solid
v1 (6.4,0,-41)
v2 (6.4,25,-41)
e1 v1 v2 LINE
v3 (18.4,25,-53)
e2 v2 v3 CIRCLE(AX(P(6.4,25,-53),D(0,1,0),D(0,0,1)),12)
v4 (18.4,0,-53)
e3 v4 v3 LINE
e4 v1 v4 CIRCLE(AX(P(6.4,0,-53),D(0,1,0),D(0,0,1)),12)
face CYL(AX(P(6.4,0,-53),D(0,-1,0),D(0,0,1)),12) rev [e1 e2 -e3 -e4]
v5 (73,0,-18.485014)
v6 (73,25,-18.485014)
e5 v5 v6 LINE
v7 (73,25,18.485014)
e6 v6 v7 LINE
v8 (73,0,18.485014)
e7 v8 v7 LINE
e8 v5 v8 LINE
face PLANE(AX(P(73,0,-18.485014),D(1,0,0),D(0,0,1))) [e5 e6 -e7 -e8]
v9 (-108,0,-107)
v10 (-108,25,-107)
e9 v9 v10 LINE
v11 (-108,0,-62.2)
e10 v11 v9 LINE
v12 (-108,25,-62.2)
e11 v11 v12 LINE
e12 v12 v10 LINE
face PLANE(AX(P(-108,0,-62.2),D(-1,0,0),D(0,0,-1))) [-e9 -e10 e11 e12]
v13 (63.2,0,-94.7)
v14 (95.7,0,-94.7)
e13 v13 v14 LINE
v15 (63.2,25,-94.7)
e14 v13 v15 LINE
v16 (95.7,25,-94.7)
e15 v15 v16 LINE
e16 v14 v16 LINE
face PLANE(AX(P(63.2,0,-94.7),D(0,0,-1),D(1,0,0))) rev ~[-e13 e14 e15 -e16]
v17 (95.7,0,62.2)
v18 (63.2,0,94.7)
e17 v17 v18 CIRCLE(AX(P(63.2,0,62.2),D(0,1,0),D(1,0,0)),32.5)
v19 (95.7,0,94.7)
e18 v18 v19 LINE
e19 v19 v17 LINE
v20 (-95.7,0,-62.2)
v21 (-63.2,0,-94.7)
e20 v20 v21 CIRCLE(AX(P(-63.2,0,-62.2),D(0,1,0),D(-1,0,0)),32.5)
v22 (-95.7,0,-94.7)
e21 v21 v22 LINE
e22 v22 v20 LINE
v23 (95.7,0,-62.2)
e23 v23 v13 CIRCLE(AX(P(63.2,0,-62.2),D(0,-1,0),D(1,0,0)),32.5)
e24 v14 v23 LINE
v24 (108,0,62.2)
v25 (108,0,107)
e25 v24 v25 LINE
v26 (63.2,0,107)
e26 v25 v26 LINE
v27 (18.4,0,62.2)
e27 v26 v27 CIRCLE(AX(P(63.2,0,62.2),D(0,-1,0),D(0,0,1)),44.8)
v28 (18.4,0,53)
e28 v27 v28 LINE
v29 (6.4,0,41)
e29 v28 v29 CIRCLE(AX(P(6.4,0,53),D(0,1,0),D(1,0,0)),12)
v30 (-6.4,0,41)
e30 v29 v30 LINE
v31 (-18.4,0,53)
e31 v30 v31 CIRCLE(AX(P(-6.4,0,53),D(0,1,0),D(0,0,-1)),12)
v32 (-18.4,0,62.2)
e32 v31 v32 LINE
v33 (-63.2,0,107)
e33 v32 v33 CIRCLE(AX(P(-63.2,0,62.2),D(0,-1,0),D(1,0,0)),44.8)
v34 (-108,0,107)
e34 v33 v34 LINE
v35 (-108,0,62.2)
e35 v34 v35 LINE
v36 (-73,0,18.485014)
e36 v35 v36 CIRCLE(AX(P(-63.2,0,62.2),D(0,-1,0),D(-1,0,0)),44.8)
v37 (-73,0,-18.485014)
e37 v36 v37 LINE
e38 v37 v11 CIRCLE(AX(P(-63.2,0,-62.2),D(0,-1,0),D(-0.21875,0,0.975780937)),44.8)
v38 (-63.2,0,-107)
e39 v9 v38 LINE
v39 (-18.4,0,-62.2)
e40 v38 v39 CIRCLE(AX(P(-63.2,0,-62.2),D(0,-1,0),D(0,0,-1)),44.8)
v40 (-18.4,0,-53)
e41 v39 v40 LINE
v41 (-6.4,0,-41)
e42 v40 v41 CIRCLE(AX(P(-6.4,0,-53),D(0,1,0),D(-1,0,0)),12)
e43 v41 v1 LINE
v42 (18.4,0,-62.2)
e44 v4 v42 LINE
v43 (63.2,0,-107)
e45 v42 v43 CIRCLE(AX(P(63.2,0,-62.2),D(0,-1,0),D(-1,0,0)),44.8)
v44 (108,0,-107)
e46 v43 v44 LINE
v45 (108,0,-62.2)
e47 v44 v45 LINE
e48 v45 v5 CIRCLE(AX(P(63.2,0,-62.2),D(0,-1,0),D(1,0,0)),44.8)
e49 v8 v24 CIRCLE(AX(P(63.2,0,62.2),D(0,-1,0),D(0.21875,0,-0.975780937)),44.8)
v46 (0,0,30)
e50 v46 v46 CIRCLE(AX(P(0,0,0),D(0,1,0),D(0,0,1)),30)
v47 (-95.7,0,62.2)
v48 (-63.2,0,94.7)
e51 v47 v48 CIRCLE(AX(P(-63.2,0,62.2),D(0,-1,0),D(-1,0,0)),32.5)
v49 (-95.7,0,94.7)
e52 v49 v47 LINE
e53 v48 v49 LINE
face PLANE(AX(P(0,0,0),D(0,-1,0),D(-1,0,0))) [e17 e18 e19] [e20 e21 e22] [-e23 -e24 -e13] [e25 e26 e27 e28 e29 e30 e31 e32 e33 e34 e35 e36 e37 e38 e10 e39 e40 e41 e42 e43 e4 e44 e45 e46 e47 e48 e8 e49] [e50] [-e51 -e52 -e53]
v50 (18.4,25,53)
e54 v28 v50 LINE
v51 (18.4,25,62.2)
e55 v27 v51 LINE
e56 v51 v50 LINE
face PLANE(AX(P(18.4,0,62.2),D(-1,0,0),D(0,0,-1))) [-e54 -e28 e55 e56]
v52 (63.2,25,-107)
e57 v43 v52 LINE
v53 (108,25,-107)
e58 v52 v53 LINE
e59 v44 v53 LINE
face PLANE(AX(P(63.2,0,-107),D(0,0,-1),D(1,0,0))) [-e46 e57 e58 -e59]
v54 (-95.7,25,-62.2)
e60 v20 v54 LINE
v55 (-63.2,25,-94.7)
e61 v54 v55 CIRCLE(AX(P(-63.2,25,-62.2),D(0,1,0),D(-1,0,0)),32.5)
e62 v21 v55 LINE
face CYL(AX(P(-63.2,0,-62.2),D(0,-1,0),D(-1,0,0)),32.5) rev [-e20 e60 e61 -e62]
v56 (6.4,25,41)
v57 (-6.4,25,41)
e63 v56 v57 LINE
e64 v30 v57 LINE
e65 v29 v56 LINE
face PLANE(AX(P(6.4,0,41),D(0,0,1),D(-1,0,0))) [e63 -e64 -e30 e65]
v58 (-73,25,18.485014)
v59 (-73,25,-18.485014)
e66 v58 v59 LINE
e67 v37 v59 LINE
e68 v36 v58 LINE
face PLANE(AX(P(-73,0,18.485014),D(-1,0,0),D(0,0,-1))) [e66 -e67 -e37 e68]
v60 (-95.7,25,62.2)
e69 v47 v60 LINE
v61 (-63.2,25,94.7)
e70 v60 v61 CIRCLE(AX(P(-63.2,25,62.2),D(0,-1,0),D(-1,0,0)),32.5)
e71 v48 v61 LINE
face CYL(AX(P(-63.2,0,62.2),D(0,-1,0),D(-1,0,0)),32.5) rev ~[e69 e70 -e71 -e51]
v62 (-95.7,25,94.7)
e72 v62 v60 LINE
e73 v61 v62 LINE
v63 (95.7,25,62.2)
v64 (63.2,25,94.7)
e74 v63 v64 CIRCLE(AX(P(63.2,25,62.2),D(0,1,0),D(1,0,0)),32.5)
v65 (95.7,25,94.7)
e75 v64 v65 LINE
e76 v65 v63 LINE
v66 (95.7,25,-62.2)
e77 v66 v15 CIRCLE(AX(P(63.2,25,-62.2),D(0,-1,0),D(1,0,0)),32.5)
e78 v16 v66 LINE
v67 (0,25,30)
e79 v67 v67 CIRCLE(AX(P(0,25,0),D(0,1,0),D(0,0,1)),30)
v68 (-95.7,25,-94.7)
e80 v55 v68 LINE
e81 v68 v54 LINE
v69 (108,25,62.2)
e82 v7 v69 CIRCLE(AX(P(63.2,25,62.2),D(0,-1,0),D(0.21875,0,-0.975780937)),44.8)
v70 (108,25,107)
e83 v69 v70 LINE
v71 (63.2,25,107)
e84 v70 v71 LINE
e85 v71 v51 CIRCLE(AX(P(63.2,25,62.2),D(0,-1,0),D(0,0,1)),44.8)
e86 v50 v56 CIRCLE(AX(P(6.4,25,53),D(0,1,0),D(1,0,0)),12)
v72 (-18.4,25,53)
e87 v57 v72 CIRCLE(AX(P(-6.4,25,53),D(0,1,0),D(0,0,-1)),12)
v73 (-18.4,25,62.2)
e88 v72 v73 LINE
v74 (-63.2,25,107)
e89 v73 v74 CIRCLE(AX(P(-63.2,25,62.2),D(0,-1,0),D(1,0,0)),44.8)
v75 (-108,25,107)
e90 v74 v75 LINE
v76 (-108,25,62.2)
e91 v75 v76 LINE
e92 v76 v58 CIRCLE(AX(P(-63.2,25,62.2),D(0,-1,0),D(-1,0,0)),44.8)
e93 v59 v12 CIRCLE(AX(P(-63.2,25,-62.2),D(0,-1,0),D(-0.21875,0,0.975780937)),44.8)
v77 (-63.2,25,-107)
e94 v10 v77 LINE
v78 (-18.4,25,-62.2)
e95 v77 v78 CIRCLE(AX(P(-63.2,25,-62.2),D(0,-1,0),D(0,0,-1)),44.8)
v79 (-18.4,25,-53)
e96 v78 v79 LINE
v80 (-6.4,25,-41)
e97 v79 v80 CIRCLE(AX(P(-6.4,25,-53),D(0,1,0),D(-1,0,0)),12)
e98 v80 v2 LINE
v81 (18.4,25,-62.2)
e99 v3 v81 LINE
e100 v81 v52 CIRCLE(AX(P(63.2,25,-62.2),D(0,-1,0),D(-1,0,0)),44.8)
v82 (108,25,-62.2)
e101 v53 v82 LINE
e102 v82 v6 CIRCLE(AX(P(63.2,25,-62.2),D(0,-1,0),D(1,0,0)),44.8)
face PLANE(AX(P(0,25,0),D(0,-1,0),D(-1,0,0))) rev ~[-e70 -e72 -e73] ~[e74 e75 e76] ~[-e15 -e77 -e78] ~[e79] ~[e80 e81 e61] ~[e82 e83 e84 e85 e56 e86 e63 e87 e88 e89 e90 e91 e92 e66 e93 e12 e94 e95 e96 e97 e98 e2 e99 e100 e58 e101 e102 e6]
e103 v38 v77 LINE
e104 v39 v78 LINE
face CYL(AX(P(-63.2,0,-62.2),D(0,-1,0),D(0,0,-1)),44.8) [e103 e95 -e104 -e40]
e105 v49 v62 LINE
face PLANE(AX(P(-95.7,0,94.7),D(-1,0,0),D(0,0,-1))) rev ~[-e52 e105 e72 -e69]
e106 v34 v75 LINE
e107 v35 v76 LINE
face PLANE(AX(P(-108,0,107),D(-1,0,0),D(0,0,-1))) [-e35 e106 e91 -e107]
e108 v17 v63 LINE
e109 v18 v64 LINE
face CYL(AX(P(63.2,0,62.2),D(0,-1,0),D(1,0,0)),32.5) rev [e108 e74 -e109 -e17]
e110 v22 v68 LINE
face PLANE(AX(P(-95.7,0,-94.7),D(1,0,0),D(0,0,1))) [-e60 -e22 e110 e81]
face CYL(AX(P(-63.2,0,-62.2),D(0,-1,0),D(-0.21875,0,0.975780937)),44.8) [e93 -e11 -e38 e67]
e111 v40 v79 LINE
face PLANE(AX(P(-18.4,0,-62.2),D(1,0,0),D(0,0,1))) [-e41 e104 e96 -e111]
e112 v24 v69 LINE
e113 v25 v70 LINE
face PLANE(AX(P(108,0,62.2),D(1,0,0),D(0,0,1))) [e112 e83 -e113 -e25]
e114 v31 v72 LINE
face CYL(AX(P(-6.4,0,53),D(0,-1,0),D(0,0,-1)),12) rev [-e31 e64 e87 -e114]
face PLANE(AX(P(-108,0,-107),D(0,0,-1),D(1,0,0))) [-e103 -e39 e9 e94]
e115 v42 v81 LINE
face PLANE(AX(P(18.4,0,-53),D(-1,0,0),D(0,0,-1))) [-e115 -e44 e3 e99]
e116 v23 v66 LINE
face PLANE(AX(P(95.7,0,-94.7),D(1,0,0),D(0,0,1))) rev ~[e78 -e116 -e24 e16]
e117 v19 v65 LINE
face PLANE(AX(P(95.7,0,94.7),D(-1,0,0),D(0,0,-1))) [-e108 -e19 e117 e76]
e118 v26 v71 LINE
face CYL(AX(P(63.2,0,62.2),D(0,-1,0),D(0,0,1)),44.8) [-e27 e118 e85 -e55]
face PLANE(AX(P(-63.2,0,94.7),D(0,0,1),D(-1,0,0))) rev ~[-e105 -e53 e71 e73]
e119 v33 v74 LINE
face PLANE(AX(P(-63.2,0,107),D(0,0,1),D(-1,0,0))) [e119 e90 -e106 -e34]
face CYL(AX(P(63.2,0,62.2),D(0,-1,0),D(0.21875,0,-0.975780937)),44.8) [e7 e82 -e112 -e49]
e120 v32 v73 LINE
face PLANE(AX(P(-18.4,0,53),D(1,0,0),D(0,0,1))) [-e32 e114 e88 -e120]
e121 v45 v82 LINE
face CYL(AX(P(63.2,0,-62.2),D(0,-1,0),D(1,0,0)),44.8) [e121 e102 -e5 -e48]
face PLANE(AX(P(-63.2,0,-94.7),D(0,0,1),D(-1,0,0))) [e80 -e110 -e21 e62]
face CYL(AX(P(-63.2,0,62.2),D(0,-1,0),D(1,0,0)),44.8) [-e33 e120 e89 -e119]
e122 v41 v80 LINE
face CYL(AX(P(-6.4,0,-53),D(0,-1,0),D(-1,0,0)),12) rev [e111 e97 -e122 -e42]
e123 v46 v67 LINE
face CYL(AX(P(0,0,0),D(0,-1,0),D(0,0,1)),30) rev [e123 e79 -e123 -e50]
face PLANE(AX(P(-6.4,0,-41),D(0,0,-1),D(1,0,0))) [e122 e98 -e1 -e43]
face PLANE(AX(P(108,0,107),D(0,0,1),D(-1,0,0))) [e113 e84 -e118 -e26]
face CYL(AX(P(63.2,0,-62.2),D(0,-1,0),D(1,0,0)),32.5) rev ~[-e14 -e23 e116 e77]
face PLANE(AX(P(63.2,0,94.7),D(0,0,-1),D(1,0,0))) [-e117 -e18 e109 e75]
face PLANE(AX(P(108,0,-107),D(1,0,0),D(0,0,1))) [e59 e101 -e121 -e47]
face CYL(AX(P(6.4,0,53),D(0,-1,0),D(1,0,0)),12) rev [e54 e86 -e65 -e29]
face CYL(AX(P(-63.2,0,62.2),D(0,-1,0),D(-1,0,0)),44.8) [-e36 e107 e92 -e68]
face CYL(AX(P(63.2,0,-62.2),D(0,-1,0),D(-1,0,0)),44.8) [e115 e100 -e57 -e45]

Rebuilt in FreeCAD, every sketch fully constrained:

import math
import FreeCAD as App
import Part
import Sketcher

doc = App.newDocument("Part")
body = doc.addObject("PartDesign::Body", "Body")

sketch1 = body.newObject("Sketcher::SketchObject", "Sketch")
sketch1.AttachmentSupport = (doc.getObject("XZ_Plane"), [""])
sketch1.MapMode = "FlatFace"
sketch1.addGeometry(Part.LineSegment(App.Vector(-63, -107, 0), App.Vector(-108, -107, 0)), False)
sketch1.addGeometry(Part.LineSegment(App.Vector(-108, -107, 0), App.Vector(-108, -62, 0)), False)
sketch1.addGeometry(Part.ArcOfCircle(Part.Circle(App.Vector(-63, -62, 0), App.Vector(0, 0, 1), 45), math.radians(103), math.radians(180)), False)
sketch1.addGeometry(Part.LineSegment(App.Vector(-73, -18, 0), App.Vector(-73, 18, 0)), False)
sketch1.addGeometry(Part.ArcOfCircle(Part.Circle(App.Vector(-63, 62, 0), App.Vector(0, 0, 1), 45), math.radians(180), math.radians(257)), False)
sketch1.addGeometry(Part.LineSegment(App.Vector(-108, 62, 0), App.Vector(-108, 107, 0)), False)
sketch1.addGeometry(Part.LineSegment(App.Vector(-108, 107, 0), App.Vector(-63, 107, 0)), False)
sketch1.addGeometry(Part.ArcOfCircle(Part.Circle(App.Vector(-63, 62, 0), App.Vector(0, 0, 1), 45), math.radians(0), math.radians(90)), False)
sketch1.addGeometry(Part.LineSegment(App.Vector(-18, 62, 0), App.Vector(-18, 53, 0)), False)
sketch1.addGeometry(Part.ArcOfCircle(Part.Circle(App.Vector(-6, 53, 0), App.Vector(0, 0, 1), 12), math.radians(-180), math.radians(-90)), False)
sketch1.addGeometry(Part.LineSegment(App.Vector(-6, 41, 0), App.Vector(6, 41, 0)), False)
sketch1.addGeometry(Part.ArcOfCircle(Part.Circle(App.Vector(6, 53, 0), App.Vector(0, 0, 1), 12), math.radians(-90), math.radians(0)), False)
sketch1.addGeometry(Part.LineSegment(App.Vector(18, 53, 0), App.Vector(18, 62, 0)), False)
sketch1.addGeometry(Part.ArcOfCircle(Part.Circle(App.Vector(63, 62, 0), App.Vector(0, 0, 1), 45), math.radians(90), math.radians(180)), False)
sketch1.addGeometry(Part.LineSegment(App.Vector(63, 107, 0), App.Vector(108, 107, 0)), False)
sketch1.addGeometry(Part.LineSegment(App.Vector(108, 107, 0), App.Vector(108, 62, 0)), False)
sketch1.addGeometry(Part.ArcOfCircle(Part.Circle(App.Vector(63, 62, 0), App.Vector(0, 0, 1), 45), math.radians(-77), math.radians(0)), False)
sketch1.addGeometry(Part.LineSegment(App.Vector(73, 18, 0), App.Vector(73, -18, 0)), False)
sketch1.addGeometry(Part.ArcOfCircle(Part.Circle(App.Vector(63, -62, 0), App.Vector(0, 0, 1), 45), math.radians(0), math.radians(77)), False)
sketch1.addGeometry(Part.LineSegment(App.Vector(108, -62, 0), App.Vector(108, -107, 0)), False)
sketch1.addGeometry(Part.LineSegment(App.Vector(108, -107, 0), App.Vector(63, -107, 0)), False)
sketch1.addGeometry(Part.ArcOfCircle(Part.Circle(App.Vector(63, -62, 0), App.Vector(0, 0, 1), 45), math.radians(-180), math.radians(-90)), False)
sketch1.addGeometry(Part.LineSegment(App.Vector(18, -62, 0), App.Vector(18, -53, 0)), False)
sketch1.addGeometry(Part.ArcOfCircle(Part.Circle(App.Vector(6, -53, 0), App.Vector(0, 0, 1), 12), math.radians(0), math.radians(90)), False)
sketch1.addGeometry(Part.LineSegment(App.Vector(6, -41, 0), App.Vector(-6, -41, 0)), False)
sketch1.addGeometry(Part.ArcOfCircle(Part.Circle(App.Vector(-6, -53, 0), App.Vector(0, 0, 1), 12), math.radians(90), math.radians(180)), False)
sketch1.addGeometry(Part.LineSegment(App.Vector(-18, -53, 0), App.Vector(-18, -62, 0)), False)
sketch1.addGeometry(Part.ArcOfCircle(Part.Circle(App.Vector(-63, -62, 0), App.Vector(0, 0, 1), 45), math.radians(-90), math.radians(0)), False)
sketch1.addGeometry(Part.ArcOfCircle(Part.Circle(App.Vector(63, 62, 0), App.Vector(0, 0, 1), 32), math.radians(90), math.radians(360)), False)
sketch1.addGeometry(Part.LineSegment(App.Vector(96, 62, 0), App.Vector(96, 95, 0)), False)
sketch1.addGeometry(Part.LineSegment(App.Vector(96, 95, 0), App.Vector(63, 95, 0)), False)
sketch1.addGeometry(Part.LineSegment(App.Vector(-63, 95, 0), App.Vector(-96, 95, 0)), False)
sketch1.addGeometry(Part.LineSegment(App.Vector(-96, 95, 0), App.Vector(-96, 62, 0)), False)
sketch1.addGeometry(Part.ArcOfCircle(Part.Circle(App.Vector(-63, 62, 0), App.Vector(0, 0, 1), 32), math.radians(180), math.radians(450)), False)
sketch1.addGeometry(Part.Circle(App.Vector(0, 0, 0), App.Vector(0, 0, 1), 30), False)
sketch1.addGeometry(Part.LineSegment(App.Vector(63, -95, 0), App.Vector(96, -95, 0)), False)
sketch1.addGeometry(Part.LineSegment(App.Vector(96, -95, 0), App.Vector(96, -62, 0)), False)
sketch1.addGeometry(Part.ArcOfCircle(Part.Circle(App.Vector(63, -62, 0), App.Vector(0, 0, 1), 32), math.radians(0), math.radians(270)), False)
sketch1.addGeometry(Part.ArcOfCircle(Part.Circle(App.Vector(-63, -62, 0), App.Vector(0, 0, 1), 32), math.radians(-90), math.radians(180)), False)
sketch1.addGeometry(Part.LineSegment(App.Vector(-96, -62, 0), App.Vector(-96, -95, 0)), False)
sketch1.addGeometry(Part.LineSegment(App.Vector(-96, -95, 0), App.Vector(-63, -95, 0)), False)
sketch1.addConstraint(Sketcher.Constraint("Coincident", 0, 2, 1, 1))
sketch1.addConstraint(Sketcher.Constraint("Tangent", 1, 2, 2, 2))
sketch1.addConstraint(Sketcher.Constraint("Coincident", 2, 1, 3, 1))
sketch1.addConstraint(Sketcher.Constraint("Coincident", 3, 2, 4, 2))
sketch1.addConstraint(Sketcher.Constraint("Tangent", 4, 1, 5, 1))
sketch1.addConstraint(Sketcher.Constraint("Coincident", 5, 2, 6, 1))
sketch1.addConstraint(Sketcher.Constraint("Tangent", 6, 2, 7, 2))
sketch1.addConstraint(Sketcher.Constraint("Tangent", 7, 1, 8, 1))
sketch1.addConstraint(Sketcher.Constraint("Tangent", 8, 2, 9, 1))
sketch1.addConstraint(Sketcher.Constraint("Tangent", 9, 2, 10, 1))
sketch1.addConstraint(Sketcher.Constraint("Tangent", 10, 2, 11, 1))
sketch1.addConstraint(Sketcher.Constraint("Tangent", 11, 2, 12, 1))
sketch1.addConstraint(Sketcher.Constraint("Tangent", 12, 2, 13, 2))
sketch1.addConstraint(Sketcher.Constraint("Tangent", 13, 1, 14, 1))
sketch1.addConstraint(Sketcher.Constraint("Coincident", 14, 2, 15, 1))
sketch1.addConstraint(Sketcher.Constraint("Tangent", 15, 2, 16, 2))
sketch1.addConstraint(Sketcher.Constraint("Coincident", 16, 1, 17, 1))
sketch1.addConstraint(Sketcher.Constraint("Coincident", 17, 2, 18, 2))
sketch1.addConstraint(Sketcher.Constraint("Tangent", 18, 1, 19, 1))
sketch1.addConstraint(Sketcher.Constraint("Coincident", 19, 2, 20, 1))
sketch1.addConstraint(Sketcher.Constraint("Tangent", 20, 2, 21, 2))
sketch1.addConstraint(Sketcher.Constraint("Tangent", 21, 1, 22, 1))
sketch1.addConstraint(Sketcher.Constraint("Tangent", 22, 2, 23, 1))
sketch1.addConstraint(Sketcher.Constraint("Tangent", 23, 2, 24, 1))
sketch1.addConstraint(Sketcher.Constraint("Tangent", 24, 2, 25, 1))
sketch1.addConstraint(Sketcher.Constraint("Tangent", 25, 2, 26, 1))
sketch1.addConstraint(Sketcher.Constraint("Tangent", 26, 2, 27, 2))
sketch1.addConstraint(Sketcher.Constraint("Tangent", 27, 1, 0, 1))
sketch1.addConstraint(Sketcher.Constraint("Tangent", 28, 2, 29, 1))
sketch1.addConstraint(Sketcher.Constraint("Coincident", 29, 2, 30, 1))
sketch1.addConstraint(Sketcher.Constraint("Tangent", 30, 2, 28, 1))
sketch1.addConstraint(Sketcher.Constraint("Coincident", 31, 2, 32, 1))
sketch1.addConstraint(Sketcher.Constraint("Tangent", 32, 2, 33, 1))
sketch1.addConstraint(Sketcher.Constraint("Tangent", 33, 2, 31, 1))
sketch1.addConstraint(Sketcher.Constraint("Coincident", 35, 2, 36, 1))
sketch1.addConstraint(Sketcher.Constraint("Tangent", 36, 2, 37, 1))
sketch1.addConstraint(Sketcher.Constraint("Tangent", 37, 2, 35, 1))
sketch1.addConstraint(Sketcher.Constraint("Tangent", 38, 2, 39, 1))
sketch1.addConstraint(Sketcher.Constraint("Coincident", 39, 2, 40, 1))
sketch1.addConstraint(Sketcher.Constraint("Tangent", 40, 2, 38, 1))
sketch1.addConstraint(Sketcher.Constraint("Horizontal", 0))
sketch1.addConstraint(Sketcher.Constraint("Vertical", 1))
sketch1.addConstraint(Sketcher.Constraint("Vertical", 3))
sketch1.addConstraint(Sketcher.Constraint("Vertical", 5))
sketch1.addConstraint(Sketcher.Constraint("Horizontal", 6))
sketch1.addConstraint(Sketcher.Constraint("Vertical", 8))
sketch1.addConstraint(Sketcher.Constraint("Horizontal", 10))
sketch1.addConstraint(Sketcher.Constraint("Vertical", 12))
sketch1.addConstraint(Sketcher.Constraint("Horizontal", 14))
sketch1.addConstraint(Sketcher.Constraint("Vertical", 15))
sketch1.addConstraint(Sketcher.Constraint("Vertical", 17))
sketch1.addConstraint(Sketcher.Constraint("Vertical", 19))
sketch1.addConstraint(Sketcher.Constraint("Horizontal", 20))
sketch1.addConstraint(Sketcher.Constraint("Vertical", 22))
sketch1.addConstraint(Sketcher.Constraint("Horizontal", 24))
sketch1.addConstraint(Sketcher.Constraint("Vertical", 26))
sketch1.addConstraint(Sketcher.Constraint("Vertical", 29))
sketch1.addConstraint(Sketcher.Constraint("Horizontal", 30))
sketch1.addConstraint(Sketcher.Constraint("Horizontal", 31))
sketch1.addConstraint(Sketcher.Constraint("Vertical", 32))
sketch1.addConstraint(Sketcher.Constraint("Horizontal", 35))
sketch1.addConstraint(Sketcher.Constraint("Vertical", 36))
sketch1.addConstraint(Sketcher.Constraint("Vertical", 39))
sketch1.addConstraint(Sketcher.Constraint("Horizontal", 40))
sketch1.addConstraint(Sketcher.Constraint("Coincident", 34, 3, -1, 1))
sketch1.addConstraint(Sketcher.Constraint("Coincident", 7, 3, 4, 3))
sketch1.addConstraint(Sketcher.Constraint("Coincident", 16, 3, 13, 3))
sketch1.addConstraint(Sketcher.Constraint("Coincident", 21, 3, 18, 3))
sketch1.addConstraint(Sketcher.Constraint("Coincident", 27, 3, 2, 3))
sketch1.addConstraint(Sketcher.Constraint("Coincident", 28, 3, 13, 3))
sketch1.addConstraint(Sketcher.Constraint("Coincident", 33, 3, 4, 3))
sketch1.addConstraint(Sketcher.Constraint("Coincident", 37, 3, 18, 3))
sketch1.addConstraint(Sketcher.Constraint("Coincident", 38, 3, 2, 3))
sketch1.addConstraint(Sketcher.Constraint("Equal", 2, 4))
sketch1.addConstraint(Sketcher.Constraint("Equal", 4, 7))
sketch1.addConstraint(Sketcher.Constraint("Equal", 9, 11))
sketch1.addConstraint(Sketcher.Constraint("Equal", 7, 13))
sketch1.addConstraint(Sketcher.Constraint("Equal", 13, 16))
sketch1.addConstraint(Sketcher.Constraint("Equal", 16, 18))
sketch1.addConstraint(Sketcher.Constraint("Equal", 18, 21))
sketch1.addConstraint(Sketcher.Constraint("Equal", 11, 23))
sketch1.addConstraint(Sketcher.Constraint("Equal", 23, 25))
sketch1.addConstraint(Sketcher.Constraint("Equal", 21, 27))
sketch1.addConstraint(Sketcher.Constraint("Equal", 28, 33))
sketch1.addConstraint(Sketcher.Constraint("Equal", 33, 37))
sketch1.addConstraint(Sketcher.Constraint("Equal", 37, 38))
sketch1.addConstraint(Sketcher.Constraint("Symmetric", 2, 3, 13, 3, -1, 1))
sketch1.addConstraint(Sketcher.Constraint("Symmetric", 4, 3, 18, 3, -1, 1))
sketch1.addConstraint(Sketcher.Constraint("Symmetric", 4, 3, 13, 3, -2))
sketch1.addConstraint(Sketcher.Constraint("Horizontal", 3, 2, 16, 1))
sketch1.addConstraint(Sketcher.Constraint("Equal", 12, 22))
sketch1.addConstraint(Sketcher.Constraint("Diameter", 34, 60.0))
sketch1.addConstraint(Sketcher.Constraint("Radius", 9, 12.0))
sketch1.addConstraint(Sketcher.Constraint("Radius", 2, 44.8))
sketch1.addConstraint(Sketcher.Constraint("Radius", 28, 32.5))
sketch1.addConstraint(Sketcher.Constraint("DistanceX", 10, 1, 10, 2, 12.8))
sketch1.addConstraint(Sketcher.Constraint("DistanceY", 8, 2, 8, 1, 9.2))
sketch1.addConstraint(Sketcher.Constraint("DistanceY", -1, 1, 9, 3, 53.0))
sketch1.addConstraint(Sketcher.Constraint("DistanceX", 2, 1, -1, 1, 73.0))
pad1 = body.newObject("PartDesign::Pad", "Pad")
pad1.Profile = sketch1
pad1.Length = 25
pad1.Reversed = True

doc.recompute()
